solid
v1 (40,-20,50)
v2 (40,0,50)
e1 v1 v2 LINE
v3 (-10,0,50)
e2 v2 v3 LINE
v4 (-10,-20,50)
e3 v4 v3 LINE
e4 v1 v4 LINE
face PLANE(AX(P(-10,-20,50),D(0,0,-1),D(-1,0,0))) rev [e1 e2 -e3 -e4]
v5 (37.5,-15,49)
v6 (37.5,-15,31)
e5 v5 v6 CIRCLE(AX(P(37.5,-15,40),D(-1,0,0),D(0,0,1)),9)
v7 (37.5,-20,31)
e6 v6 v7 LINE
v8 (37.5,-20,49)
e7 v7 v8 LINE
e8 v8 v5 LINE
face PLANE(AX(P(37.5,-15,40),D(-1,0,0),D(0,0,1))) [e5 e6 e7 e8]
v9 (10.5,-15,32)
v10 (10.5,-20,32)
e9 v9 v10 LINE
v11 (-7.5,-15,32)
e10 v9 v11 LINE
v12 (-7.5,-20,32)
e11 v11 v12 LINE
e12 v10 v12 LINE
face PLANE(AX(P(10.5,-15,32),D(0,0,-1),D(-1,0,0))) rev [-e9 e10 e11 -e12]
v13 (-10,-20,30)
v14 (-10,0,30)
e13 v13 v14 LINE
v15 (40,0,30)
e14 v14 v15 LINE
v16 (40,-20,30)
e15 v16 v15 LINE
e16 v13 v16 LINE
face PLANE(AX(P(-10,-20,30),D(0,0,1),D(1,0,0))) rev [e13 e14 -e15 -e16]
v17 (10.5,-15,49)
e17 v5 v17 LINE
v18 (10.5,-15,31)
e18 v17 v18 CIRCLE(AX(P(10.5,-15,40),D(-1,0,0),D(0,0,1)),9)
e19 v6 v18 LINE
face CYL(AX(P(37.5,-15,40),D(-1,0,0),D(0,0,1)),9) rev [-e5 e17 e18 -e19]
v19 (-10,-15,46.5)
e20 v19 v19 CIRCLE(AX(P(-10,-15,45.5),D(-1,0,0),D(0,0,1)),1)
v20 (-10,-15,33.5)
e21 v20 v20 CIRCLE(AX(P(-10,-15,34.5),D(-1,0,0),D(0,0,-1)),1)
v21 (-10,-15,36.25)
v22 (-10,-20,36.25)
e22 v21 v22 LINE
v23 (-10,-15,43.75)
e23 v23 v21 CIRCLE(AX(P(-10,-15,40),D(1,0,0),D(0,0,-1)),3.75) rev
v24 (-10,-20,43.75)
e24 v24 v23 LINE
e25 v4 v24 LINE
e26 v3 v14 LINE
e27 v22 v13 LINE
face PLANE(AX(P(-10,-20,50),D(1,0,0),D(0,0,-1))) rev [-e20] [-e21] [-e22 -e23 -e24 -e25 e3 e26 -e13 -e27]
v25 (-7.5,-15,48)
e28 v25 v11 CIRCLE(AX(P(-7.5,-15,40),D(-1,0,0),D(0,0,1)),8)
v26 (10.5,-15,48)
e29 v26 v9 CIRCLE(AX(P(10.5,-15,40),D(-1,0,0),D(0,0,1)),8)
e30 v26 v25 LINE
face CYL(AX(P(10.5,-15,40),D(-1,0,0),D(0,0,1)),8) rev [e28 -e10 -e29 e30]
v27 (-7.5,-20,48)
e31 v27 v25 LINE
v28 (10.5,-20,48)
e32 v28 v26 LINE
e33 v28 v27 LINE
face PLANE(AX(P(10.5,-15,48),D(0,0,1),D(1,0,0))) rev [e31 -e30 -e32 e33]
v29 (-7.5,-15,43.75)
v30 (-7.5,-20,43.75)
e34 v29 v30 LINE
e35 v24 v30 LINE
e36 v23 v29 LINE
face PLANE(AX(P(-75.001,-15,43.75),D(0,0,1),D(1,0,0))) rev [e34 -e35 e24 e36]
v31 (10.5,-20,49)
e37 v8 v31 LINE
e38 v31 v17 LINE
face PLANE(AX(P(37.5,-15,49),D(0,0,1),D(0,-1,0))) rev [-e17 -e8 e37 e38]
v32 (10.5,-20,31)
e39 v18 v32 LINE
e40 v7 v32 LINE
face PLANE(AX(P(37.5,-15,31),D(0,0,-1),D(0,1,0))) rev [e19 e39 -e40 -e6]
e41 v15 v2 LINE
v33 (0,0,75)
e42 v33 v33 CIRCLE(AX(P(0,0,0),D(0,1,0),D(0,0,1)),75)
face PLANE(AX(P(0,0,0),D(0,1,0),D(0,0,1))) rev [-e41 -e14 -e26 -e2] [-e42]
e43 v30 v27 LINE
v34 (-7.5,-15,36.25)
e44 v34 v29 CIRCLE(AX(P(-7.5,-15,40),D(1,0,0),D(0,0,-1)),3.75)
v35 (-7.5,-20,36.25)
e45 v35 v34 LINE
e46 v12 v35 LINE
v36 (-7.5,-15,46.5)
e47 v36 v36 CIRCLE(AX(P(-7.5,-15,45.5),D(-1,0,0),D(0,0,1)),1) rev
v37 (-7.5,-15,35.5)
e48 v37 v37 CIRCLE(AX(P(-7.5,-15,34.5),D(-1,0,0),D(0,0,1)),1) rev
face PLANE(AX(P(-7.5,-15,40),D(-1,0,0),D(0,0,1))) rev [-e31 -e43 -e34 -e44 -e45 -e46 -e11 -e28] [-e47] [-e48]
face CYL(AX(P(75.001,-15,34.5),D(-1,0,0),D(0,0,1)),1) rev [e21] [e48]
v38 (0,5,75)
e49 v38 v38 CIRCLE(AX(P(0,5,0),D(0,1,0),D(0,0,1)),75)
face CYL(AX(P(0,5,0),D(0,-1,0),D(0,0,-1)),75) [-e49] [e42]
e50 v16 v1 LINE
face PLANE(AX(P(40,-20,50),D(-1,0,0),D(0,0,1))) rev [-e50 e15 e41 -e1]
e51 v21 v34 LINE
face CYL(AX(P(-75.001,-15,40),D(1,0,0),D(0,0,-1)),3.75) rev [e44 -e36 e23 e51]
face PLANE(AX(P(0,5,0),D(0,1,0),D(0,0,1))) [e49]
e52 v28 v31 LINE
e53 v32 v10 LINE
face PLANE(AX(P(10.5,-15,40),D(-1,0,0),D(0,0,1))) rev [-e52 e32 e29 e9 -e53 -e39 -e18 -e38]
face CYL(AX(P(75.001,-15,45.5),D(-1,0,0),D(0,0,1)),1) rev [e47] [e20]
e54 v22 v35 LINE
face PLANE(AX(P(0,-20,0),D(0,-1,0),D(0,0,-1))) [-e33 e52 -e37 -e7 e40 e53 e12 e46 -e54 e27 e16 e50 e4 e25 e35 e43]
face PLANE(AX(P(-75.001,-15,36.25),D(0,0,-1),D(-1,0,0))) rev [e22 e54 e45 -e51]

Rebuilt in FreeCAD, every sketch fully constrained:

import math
import FreeCAD as App
import Part
import Sketcher

doc = App.newDocument("Part")
params = doc.addObject("Spreadsheet::Sheet", "Params")
for row, (alias, value) in enumerate([
    ("sketch1_diameter", "150 mm"),
    ("pad1_length", "5 mm"),
    ("sketch2_width", "50 mm"),
    ("sketch2_height", "20 mm"),
    ("pad2_length", "20 mm"),
    ("sketch3_radius", "8 mm"),
    ("sketch3_width", "5 mm"),
    ("pocket1_length", "18 mm"),
    ("sketch4_radius", "9 mm"),
    ("sketch4_width", "5 mm"),
    ("pocket2_length", "27 mm"),
    ("sketch5_width", "5 mm"),
    ("sketch5_radius", "3.75 mm"),
    ("sketch6_diameter", "2 mm"),
    ("sketch7_diameter", "2 mm"),
], start=1):
    params.set(f"A{row}", alias)
    params.set(f"B{row}", "=" + value)
    params.setAlias(f"B{row}", alias)

body = doc.addObject("PartDesign::Body", "Body")

sketch1 = doc.addObject("Sketcher::SketchObject", "Sketch")
body.addObject(sketch1)
sketch1.AttachmentSupport = (doc.XZ_Plane, [""])
sketch1.MapMode = "FlatFace"
sketch1.addGeometry(Part.Circle(App.Vector(0, 0, 0), App.Vector(0, 0, 1), 75), False)
sketch1.addConstraint(Sketcher.Constraint("Coincident", 0, 3, -1, 1))
sketch1.addConstraint(Sketcher.Constraint("Diameter", 0, 150.0))
sketch1.setExpression("Constraints[1]", "Params.sketch1_diameter")
pad1 = doc.addObject("PartDesign::Pad", "Pad")
body.addObject(pad1)
pad1.Profile = sketch1
pad1.setExpression("Length", "Params.pad1_length")
pad1.Reversed = True

sketch2 = doc.addObject("Sketcher::SketchObject", "Sketch001")
body.addObject(sketch2)
sketch2.AttachmentSupport = (doc.XZ_Plane, [""])
sketch2.MapMode = "FlatFace"
sketch2.addGeometry(Part.LineSegment(App.Vector(40, 30, 0), App.Vector(40, 50, 0)), False)
sketch2.addGeometry(Part.LineSegment(App.Vector(40, 50, 0), App.Vector(-10, 50, 0)), False)
sketch2.addGeometry(Part.LineSegment(App.Vector(-10, 50, 0), App.Vector(-10, 30, 0)), False)
sketch2.addGeometry(Part.LineSegment(App.Vector(-10, 30, 0), App.Vector(40, 30, 0)), False)
sketch2.addConstraint(Sketcher.Constraint("Coincident", 0, 2, 1, 1))
sketch2.addConstraint(Sketcher.Constraint("Coincident", 1, 2, 2, 1))
sketch2.addConstraint(Sketcher.Constraint("Coincident", 2, 2, 3, 1))
sketch2.addConstraint(Sketcher.Constraint("Coincident", 3, 2, 0, 1))
sketch2.addConstraint(Sketcher.Constraint("Vertical", 0))
sketch2.addConstraint(Sketcher.Constraint("Horizontal", 1))
sketch2.addConstraint(Sketcher.Constraint("Vertical", 2))
sketch2.addConstraint(Sketcher.Constraint("Horizontal", 3))
sketch2.addConstraint(Sketcher.Constraint("DistanceX", 1, 2, 1, 1, 50.0))
sketch2.addConstraint(Sketcher.Constraint("DistanceY", 0, 1, 0, 2, 20.0))
sketch2.addConstraint(Sketcher.Constraint("DistanceX", -1, 1, 0, 2, 40.0))
sketch2.addConstraint(Sketcher.Constraint("DistanceY", -1, 1, 0, 2, 50.0))
sketch2.setExpression("Constraints[8]", "Params.sketch2_width")
sketch2.setExpression("Constraints[9]", "Params.sketch2_height")
pad2 = doc.addObject("PartDesign::Pad", "Pad001")
body.addObject(pad2)
pad2.Profile = sketch2
pad2.setExpression("Length", "Params.pad2_length")

sketch3 = doc.addObject("Sketcher::SketchObject", "Sketch002")
body.addObject(sketch3)
sketch3.AttachmentSupport = (doc.YZ_Plane, [""])
sketch3.MapMode = "FlatFace"
sketch3.AttachmentOffset = App.Placement(App.Vector(0, 0, -7.5), App.Rotation())
sketch3.addGeometry(Part.LineSegment(App.Vector(-15, 32, 0), App.Vector(-20, 32, 0)), False)
sketch3.addGeometry(Part.LineSegment(App.Vector(-20, 32, 0), App.Vector(-20, 48, 0)), False)
sketch3.addGeometry(Part.LineSegment(App.Vector(-20, 48, 0), App.Vector(-15, 48, 0)), False)
sketch3.addGeometry(Part.ArcOfCircle(Part.Circle(App.Vector(-15, 40, 0), App.Vector(0, 0, 1), 8), math.radians(-90), math.radians(90)), False)
sketch3.addConstraint(Sketcher.Constraint("Coincident", 0, 2, 1, 1))
sketch3.addConstraint(Sketcher.Constraint("Coincident", 1, 2, 2, 1))
sketch3.addConstraint(Sketcher.Constraint("Tangent", 2, 2, 3, 2))
sketch3.addConstraint(Sketcher.Constraint("Tangent", 3, 1, 0, 1))
sketch3.addConstraint(Sketcher.Constraint("Horizontal", 0))
sketch3.addConstraint(Sketcher.Constraint("Vertical", 1))
sketch3.addConstraint(Sketcher.Constraint("Horizontal", 2))
sketch3.addConstraint(Sketcher.Constraint("Radius", 3, 8.0))
sketch3.addConstraint(Sketcher.Constraint("DistanceX", 0, 2, 0, 1, 5.0))
sketch3.addConstraint(Sketcher.Constraint("DistanceX", 3, 3, -1, 1, 15.0))
sketch3.addConstraint(Sketcher.Constraint("DistanceY", -1, 1, 3, 3, 40.0))
sketch3.setExpression("Constraints[7]", "Params.sketch3_radius")
sketch3.setExpression("Constraints[8]", "Params.sketch3_width")
pocket1 = doc.addObject("PartDesign::Pocket", "Pocket")
body.addObject(pocket1)
pocket1.Profile = sketch3
pocket1.setExpression("Length", "Params.pocket1_length")
pocket1.Reversed = True

sketch4 = doc.addObject("Sketcher::SketchObject", "Sketch003")
body.addObject(sketch4)
sketch4.AttachmentSupport = (doc.YZ_Plane, [""])
sketch4.MapMode = "FlatFace"
sketch4.AttachmentOffset = App.Placement(App.Vector(0, 0, 10.5), App.Rotation())
sketch4.addGeometry(Part.LineSegment(App.Vector(-15, 31, 0), App.Vector(-20, 31, 0)), False)
sketch4.addGeometry(Part.LineSegment(App.Vector(-20, 31, 0), App.Vector(-20, 49, 0)), False)
sketch4.addGeometry(Part.LineSegment(App.Vector(-20, 49, 0), App.Vector(-15, 49, 0)), False)
sketch4.addGeometry(Part.ArcOfCircle(Part.Circle(App.Vector(-15, 40, 0), App.Vector(0, 0, 1), 9), math.radians(-90), math.radians(90)), False)
sketch4.addConstraint(Sketcher.Constraint("Coincident", 0, 2, 1, 1))
sketch4.addConstraint(Sketcher.Constraint("Coincident", 1, 2, 2, 1))
sketch4.addConstraint(Sketcher.Constraint("Tangent", 2, 2, 3, 2))
sketch4.addConstraint(Sketcher.Constraint("Tangent", 3, 1, 0, 1))
sketch4.addConstraint(Sketcher.Constraint("Horizontal", 0))
sketch4.addConstraint(Sketcher.Constraint("Vertical", 1))
sketch4.addConstraint(Sketcher.Constraint("Horizontal", 2))
sketch4.addConstraint(Sketcher.Constraint("Radius", 3, 9.0))
sketch4.addConstraint(Sketcher.Constraint("DistanceX", 0, 2, 0, 1, 5.0))
sketch4.addConstraint(Sketcher.Constraint("DistanceX", 3, 3, -1, 1, 15.0))
sketch4.addConstraint(Sketcher.Constraint("DistanceY", -1, 1, 3, 3, 40.0))
sketch4.setExpression("Constraints[7]", "Params.sketch4_radius")
sketch4.setExpression("Constraints[8]", "Params.sketch4_width")
pocket2 = doc.addObject("PartDesign::Pocket", "Pocket001")
body.addObject(pocket2)
pocket2.Profile = sketch4
pocket2.setExpression("Length", "Params.pocket2_length")
pocket2.Reversed = True

sketch5 = doc.addObject("Sketcher::SketchObject", "Sketch004")
body.addObject(sketch5)
sketch5.AttachmentSupport = (doc.YZ_Plane, [""])
sketch5.MapMode = "FlatFace"
sketch5.AttachmentOffset = App.Placement(App.Vector(0, 0, -7.5), App.Rotation())
sketch5.addGeometry(Part.LineSegment(App.Vector(-20, 36.2, 0), App.Vector(-15, 36.2, 0)), False)
sketch5.addGeometry(Part.ArcOfCircle(Part.Circle(App.Vector(-15, 40, 0), App.Vector(0, 0, 1), 3.8), math.radians(-90), math.radians(90)), False)
sketch5.addGeometry(Part.LineSegment(App.Vector(-15, 43.8, 0), App.Vector(-20, 43.8, 0)), False)
sketch5.addGeometry(Part.LineSegment(App.Vector(-20, 43.8, 0), App.Vector(-20, 36.2, 0)), False)
sketch5.addConstraint(Sketcher.Constraint("Tangent", 0, 2, 1, 1))
sketch5.addConstraint(Sketcher.Constraint("Tangent", 1, 2, 2, 1))
sketch5.addConstraint(Sketcher.Constraint("Coincident", 2, 2, 3, 1))
sketch5.addConstraint(Sketcher.Constraint("Coincident", 3, 2, 0, 1))
sketch5.addConstraint(Sketcher.Constraint("Horizontal", 0))
sketch5.addConstraint(Sketcher.Constraint("Horizontal", 2))
sketch5.addConstraint(Sketcher.Constraint("Vertical", 3))
sketch5.addConstraint(Sketcher.Constraint("DistanceX", 0, 1, 0, 2, 5.0))
sketch5.addConstraint(Sketcher.Constraint("Radius", 1, 3.75))
sketch5.addConstraint(Sketcher.Constraint("DistanceX", 1, 3, -1, 1, 15.0))
sketch5.addConstraint(Sketcher.Constraint("DistanceY", -1, 1, 1, 3, 40.0))
sketch5.setExpression("Constraints[7]", "Params.sketch5_width")
sketch5.setExpression("Constraints[8]", "Params.sketch5_radius")
pocket3 = doc.addObject("PartDesign::Pocket", "Pocket002")
body.addObject(pocket3)
pocket3.Profile = sketch5
pocket3.Type = "UpToFirst"

sketch6 = doc.addObject("Sketcher::SketchObject", "Sketch005")
body.addObject(sketch6)
sketch6.AttachmentSupport = (doc.YZ_Plane, [""])
sketch6.MapMode = "FlatFace"
sketch6.AttachmentOffset = App.Placement(App.Vector(0, 0, -10), App.Rotation())
sketch6.addGeometry(Part.Circle(App.Vector(-15, 45.5, 0), App.Vector(0, 0, 1), 1), False)
sketch6.addConstraint(Sketcher.Constraint("Diameter", 0, 2.0))
sketch6.addConstraint(Sketcher.Constraint("DistanceX", 0, 3, -1, 1, 15.0))
sketch6.addConstraint(Sketcher.Constraint("DistanceY", -1, 1, 0, 3, 45.5))
sketch6.setExpression("Constraints[0]", "Params.sketch6_diameter")
pocket4 = doc.addObject("PartDesign::Pocket", "Pocket003")
body.addObject(pocket4)
pocket4.Profile = sketch6
pocket4.Type = "UpToFirst"
pocket4.Reversed = True

sketch7 = doc.addObject("Sketcher::SketchObject", "Sketch006")
body.addObject(sketch7)
sketch7.AttachmentSupport = (doc.YZ_Plane, [""])
sketch7.MapMode = "FlatFace"
sketch7.AttachmentOffset = App.Placement(App.Vector(0, 0, -10), App.Rotation())
sketch7.addGeometry(Part.Circle(App.Vector(-15, 34.5, 0), App.Vector(0, 0, 1), 1), False)
sketch7.addConstraint(Sketcher.Constraint("Diameter", 0, 2.0))
sketch7.addConstraint(Sketcher.Constraint("DistanceX", 0, 3, -1, 1, 15.0))
sketch7.addConstraint(Sketcher.Constraint("DistanceY", -1, 1, 0, 3, 34.5))
sketch7.setExpression("Constraints[0]", "Params.sketch7_diameter")
pocket5 = doc.addObject("PartDesign::Pocket", "Pocket004")
body.addObject(pocket5)
pocket5.Profile = sketch7
pocket5.Type = "UpToFirst"
pocket5.Reversed = True

doc.recompute()
